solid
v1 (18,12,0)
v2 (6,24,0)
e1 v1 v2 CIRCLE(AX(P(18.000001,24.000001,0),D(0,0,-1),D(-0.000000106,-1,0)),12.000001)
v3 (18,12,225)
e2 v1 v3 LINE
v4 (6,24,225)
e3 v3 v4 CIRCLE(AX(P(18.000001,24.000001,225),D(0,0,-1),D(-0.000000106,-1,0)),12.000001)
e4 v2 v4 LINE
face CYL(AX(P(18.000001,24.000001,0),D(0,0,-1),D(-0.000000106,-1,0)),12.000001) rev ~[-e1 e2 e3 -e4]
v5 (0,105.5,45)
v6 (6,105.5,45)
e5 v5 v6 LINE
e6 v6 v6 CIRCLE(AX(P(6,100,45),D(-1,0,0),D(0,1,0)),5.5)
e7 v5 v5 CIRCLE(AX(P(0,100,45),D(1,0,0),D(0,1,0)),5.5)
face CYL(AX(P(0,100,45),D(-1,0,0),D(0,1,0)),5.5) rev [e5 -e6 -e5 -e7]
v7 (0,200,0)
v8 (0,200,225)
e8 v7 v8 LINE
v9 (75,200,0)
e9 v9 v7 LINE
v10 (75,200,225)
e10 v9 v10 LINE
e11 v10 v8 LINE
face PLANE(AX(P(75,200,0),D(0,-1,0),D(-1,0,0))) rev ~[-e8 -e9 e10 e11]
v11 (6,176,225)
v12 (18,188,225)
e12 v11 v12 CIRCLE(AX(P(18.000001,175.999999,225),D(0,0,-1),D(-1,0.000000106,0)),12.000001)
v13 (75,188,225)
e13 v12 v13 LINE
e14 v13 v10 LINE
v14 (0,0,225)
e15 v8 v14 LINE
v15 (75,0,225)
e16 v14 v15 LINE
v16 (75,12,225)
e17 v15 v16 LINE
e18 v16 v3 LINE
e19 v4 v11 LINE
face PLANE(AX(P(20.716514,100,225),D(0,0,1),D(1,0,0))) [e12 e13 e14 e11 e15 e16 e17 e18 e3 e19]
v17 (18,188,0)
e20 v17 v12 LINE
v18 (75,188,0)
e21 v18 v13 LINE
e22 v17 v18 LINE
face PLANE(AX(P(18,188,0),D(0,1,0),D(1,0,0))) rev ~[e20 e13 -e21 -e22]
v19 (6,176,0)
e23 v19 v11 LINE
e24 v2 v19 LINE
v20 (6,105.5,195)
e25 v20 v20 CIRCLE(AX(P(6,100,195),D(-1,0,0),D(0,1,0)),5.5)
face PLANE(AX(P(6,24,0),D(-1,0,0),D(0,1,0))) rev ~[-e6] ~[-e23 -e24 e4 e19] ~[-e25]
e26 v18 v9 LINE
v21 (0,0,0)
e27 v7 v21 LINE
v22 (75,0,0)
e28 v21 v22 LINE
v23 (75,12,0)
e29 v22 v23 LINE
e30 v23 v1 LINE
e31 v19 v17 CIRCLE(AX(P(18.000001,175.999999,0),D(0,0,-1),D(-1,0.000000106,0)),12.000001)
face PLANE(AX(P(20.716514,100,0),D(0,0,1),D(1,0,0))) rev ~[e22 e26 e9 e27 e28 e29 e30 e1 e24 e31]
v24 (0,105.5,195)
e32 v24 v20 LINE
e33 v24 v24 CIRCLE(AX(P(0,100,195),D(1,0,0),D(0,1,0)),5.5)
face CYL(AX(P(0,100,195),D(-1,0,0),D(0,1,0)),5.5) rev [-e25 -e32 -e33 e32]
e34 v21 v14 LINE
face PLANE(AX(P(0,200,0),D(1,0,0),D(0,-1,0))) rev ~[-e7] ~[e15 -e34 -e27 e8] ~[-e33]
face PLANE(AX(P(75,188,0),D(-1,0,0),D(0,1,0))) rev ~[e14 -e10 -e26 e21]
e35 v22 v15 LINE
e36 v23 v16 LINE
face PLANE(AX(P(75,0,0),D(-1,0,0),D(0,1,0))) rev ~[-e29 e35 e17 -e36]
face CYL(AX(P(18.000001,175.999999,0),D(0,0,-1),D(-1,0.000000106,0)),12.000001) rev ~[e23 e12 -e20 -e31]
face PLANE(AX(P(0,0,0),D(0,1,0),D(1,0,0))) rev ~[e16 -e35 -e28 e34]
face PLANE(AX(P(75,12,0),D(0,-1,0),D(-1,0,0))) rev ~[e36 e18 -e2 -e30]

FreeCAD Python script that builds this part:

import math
import FreeCAD as App
import Part
import Sketcher

V = App.Vector
Q = App.Units.Quantity

doc = App.newDocument("Part")
body = doc.addObject("PartDesign::Body", "Body")

sketch1 = doc.addObject("Sketcher::SketchObject", "Sketch")
body.addObject(sketch1)
sketch1.AttachmentSupport = (doc.XY_Plane, [""])
sketch1.MapMode = "FlatFace"
sketch1.addGeometry([
    Part.LineSegment(V(0, 200, 0), V(0, 0, 0)),
    Part.LineSegment(V(0, 0, 0), V(75, 0, 0)),
    Part.LineSegment(V(75, 0, 0), V(75, 12, 0)),
    Part.LineSegment(V(75, 12, 0), V(18, 12, 0)),
    Part.ArcOfCircle(Part.Circle(V(18, 24, 0), V(0, 0, 1), 12), math.radians(-180), math.radians(-90)),
    Part.LineSegment(V(6, 24, 0), V(6, 176, 0)),
    Part.ArcOfCircle(Part.Circle(V(18, 176, 0), V(0, 0, 1), 12), math.radians(90), math.radians(180)),
    Part.LineSegment(V(18, 188, 0), V(75, 188, 0)),
    Part.LineSegment(V(75, 188, 0), V(75, 200, 0)),
    Part.LineSegment(V(75, 200, 0), V(0, 200, 0)),
], False)
sketch1.addConstraint([
    Sketcher.Constraint("Coincident", 0, 2, 1, 1),
    Sketcher.Constraint("Coincident", 1, 2, 2, 1),
    Sketcher.Constraint("Coincident", 2, 2, 3, 1),
    Sketcher.Constraint("Tangent", 3, 2, 4, 2),
    Sketcher.Constraint("Tangent", 4, 1, 5, 1),
    Sketcher.Constraint("Tangent", 5, 2, 6, 2),
    Sketcher.Constraint("Tangent", 6, 1, 7, 1),
    Sketcher.Constraint("Coincident", 7, 2, 8, 1),
    Sketcher.Constraint("Coincident", 8, 2, 9, 1),
    Sketcher.Constraint("Coincident", 9, 2, 0, 1),
    Sketcher.Constraint("Vertical", 0),
    Sketcher.Constraint("Horizontal", 1),
    Sketcher.Constraint("Vertical", 2),
    Sketcher.Constraint("Horizontal", 3),
    Sketcher.Constraint("Vertical", 5),
    Sketcher.Constraint("Horizontal", 7),
    Sketcher.Constraint("Vertical", 8),
    Sketcher.Constraint("Horizontal", 9),
    Sketcher.Constraint("Coincident", 0, 2, -1, 1),
    Sketcher.Constraint("Equal", 4, 6),
    Sketcher.Constraint("Vertical", 2, 2, 7, 2),
    Sketcher.Constraint("Equal", 2, 8),
    Sketcher.Constraint("Radius", 4, Q("12.000001 mm")),
    Sketcher.Constraint("DistanceX", 1, 1, 1, 2, Q("75 mm")),
    Sketcher.Constraint("DistanceX", 3, 2, 3, 1, Q("57 mm")),
    Sketcher.Constraint("DistanceY", 0, 2, 0, 1, Q("200 mm")),
    Sketcher.Constraint("DistanceY", 2, 1, 2, 2, Q("12 mm")),
])
pad1 = doc.addObject("PartDesign::Pad", "Pad")
body.addObject(pad1)
pad1.Profile = sketch1
pad1.Length = 225

sketch2 = doc.addObject("Sketcher::SketchObject", "Sketch001")
body.addObject(sketch2)
sketch2.AttachmentSupport = (doc.YZ_Plane, [""])
sketch2.MapMode = "FlatFace"
sketch2.addGeometry([
    Part.Circle(V(100, 195, 0), V(0, 0, 1), 6),
    Part.Circle(V(100, 45, 0), V(0, 0, 1), 6),
], False)
sketch2.addConstraint([
    Sketcher.Constraint("Equal", 0, 1),
    Sketcher.Constraint("Vertical", 0, 3, 1, 3),
    Sketcher.Constraint("Diameter", 0, Q("11 mm")),
    Sketcher.Constraint("DistanceX", -1, 1, 0, 3, Q("100 mm")),
    Sketcher.Constraint("DistanceY", -1, 1, 0, 3, Q("195 mm")),
    Sketcher.Constraint("DistanceY", -1, 1, 1, 3, Q("45 mm")),
])
pocket1 = doc.addObject("PartDesign::Pocket", "Pocket")
body.addObject(pocket1)
pocket1.Profile = sketch2
pocket1.Type = "ThroughAll"
pocket1.Reversed = True

doc.recompute()
